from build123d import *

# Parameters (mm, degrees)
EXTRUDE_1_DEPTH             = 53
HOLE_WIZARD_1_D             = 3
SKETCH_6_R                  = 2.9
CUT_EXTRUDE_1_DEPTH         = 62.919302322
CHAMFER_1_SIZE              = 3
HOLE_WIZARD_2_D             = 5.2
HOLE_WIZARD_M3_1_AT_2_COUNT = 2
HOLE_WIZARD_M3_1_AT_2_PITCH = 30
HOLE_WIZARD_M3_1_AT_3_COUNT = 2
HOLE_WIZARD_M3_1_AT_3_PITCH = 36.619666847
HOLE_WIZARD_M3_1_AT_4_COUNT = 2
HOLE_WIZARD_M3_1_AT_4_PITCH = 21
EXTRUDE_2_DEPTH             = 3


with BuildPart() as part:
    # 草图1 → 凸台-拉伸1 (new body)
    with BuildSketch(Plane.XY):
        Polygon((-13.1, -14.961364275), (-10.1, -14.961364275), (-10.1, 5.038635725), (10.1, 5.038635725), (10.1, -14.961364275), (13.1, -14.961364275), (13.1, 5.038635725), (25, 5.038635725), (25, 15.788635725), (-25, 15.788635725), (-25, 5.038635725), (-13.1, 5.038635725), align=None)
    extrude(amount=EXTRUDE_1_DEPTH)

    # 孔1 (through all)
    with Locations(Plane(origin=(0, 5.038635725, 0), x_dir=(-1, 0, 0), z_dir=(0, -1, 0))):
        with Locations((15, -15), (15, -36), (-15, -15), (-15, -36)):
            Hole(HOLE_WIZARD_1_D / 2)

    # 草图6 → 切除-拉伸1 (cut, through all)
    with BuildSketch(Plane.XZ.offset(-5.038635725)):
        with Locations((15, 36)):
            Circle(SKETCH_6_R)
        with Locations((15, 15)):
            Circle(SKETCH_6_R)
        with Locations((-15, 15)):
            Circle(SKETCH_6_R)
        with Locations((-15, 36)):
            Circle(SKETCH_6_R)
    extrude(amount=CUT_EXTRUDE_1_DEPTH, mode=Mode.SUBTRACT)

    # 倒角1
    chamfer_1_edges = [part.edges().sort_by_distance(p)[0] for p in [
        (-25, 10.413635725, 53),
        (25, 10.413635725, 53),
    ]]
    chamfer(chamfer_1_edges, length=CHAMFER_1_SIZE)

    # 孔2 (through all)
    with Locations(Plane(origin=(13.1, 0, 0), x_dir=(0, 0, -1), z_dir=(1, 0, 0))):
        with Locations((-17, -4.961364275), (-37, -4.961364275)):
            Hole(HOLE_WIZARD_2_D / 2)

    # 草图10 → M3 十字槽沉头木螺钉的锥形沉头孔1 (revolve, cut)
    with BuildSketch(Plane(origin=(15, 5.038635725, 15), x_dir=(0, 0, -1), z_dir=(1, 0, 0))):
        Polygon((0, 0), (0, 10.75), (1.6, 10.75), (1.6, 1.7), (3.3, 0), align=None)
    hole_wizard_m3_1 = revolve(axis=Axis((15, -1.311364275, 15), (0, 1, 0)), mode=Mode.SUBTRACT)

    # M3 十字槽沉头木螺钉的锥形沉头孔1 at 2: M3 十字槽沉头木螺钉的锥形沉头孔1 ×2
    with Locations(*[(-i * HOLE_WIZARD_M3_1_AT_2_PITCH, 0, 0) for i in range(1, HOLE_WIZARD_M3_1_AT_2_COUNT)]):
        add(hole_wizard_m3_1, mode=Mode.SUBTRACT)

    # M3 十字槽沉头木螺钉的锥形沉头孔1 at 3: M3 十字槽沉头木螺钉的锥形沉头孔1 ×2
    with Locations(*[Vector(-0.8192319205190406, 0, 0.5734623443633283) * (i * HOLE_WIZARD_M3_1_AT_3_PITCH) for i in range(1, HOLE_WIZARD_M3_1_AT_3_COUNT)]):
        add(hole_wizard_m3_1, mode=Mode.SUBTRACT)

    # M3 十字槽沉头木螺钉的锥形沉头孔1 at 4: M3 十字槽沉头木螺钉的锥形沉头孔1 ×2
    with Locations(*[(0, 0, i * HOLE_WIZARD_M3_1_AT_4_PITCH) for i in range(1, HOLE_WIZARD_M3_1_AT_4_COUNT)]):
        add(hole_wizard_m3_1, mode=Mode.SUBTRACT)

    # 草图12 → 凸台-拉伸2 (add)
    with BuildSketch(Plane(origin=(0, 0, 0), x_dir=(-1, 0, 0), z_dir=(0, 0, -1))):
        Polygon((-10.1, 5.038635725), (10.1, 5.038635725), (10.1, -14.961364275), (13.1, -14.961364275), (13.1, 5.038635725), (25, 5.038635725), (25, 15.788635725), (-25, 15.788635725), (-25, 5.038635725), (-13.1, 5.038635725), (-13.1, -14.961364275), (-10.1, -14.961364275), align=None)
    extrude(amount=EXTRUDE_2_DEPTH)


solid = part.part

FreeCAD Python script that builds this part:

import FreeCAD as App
import Part
import Sketcher

V = App.Vector
Q = App.Units.Quantity


def edges_at(feature, points):
    """Names of the edges that pass closest to the given points."""
    edges = feature.Shape.Edges
    near = lambda p: min(range(len(edges)), key=lambda i: edges[i].distToShape(Part.Vertex(*p))[0])
    return sorted({f"Edge{near(p) + 1}" for p in points})


def add_polygon(sketch, points):
    """Adds a closed chain of lines whose ends are joined by coincident constraints."""
    first, n = sketch.GeometryCount, len(points)
    for a, b in zip(points, points[1:] + points[:1]):
        sketch.addGeometry(Part.LineSegment(App.Vector(*a, 0), App.Vector(*b, 0)), False)
    for i in range(n):
        sketch.addConstraint(Sketcher.Constraint("Coincident", first + i, 2, first + (i + 1) % n, 1))

doc = App.newDocument("Part")
params = doc.addObject("Spreadsheet::Sheet", "Params")
for row, (alias, value) in enumerate([
    ("sketch1_width", "3 mm"),
    ("sketch1_width2", "50 mm"),
    ("sketch1_height", "20 mm"),
    ("sketch1_width3", "20.2 mm"),
    ("sketch1_height2", "10.75 mm"),
    ("pad1_length", "53 mm"),
    ("sketch2_diameter", "3 mm"),
    ("hole_diameter", "3 mm"),
    ("sketch3_diameter", "5.8 mm"),
    ("chamfer_size", "3 mm"),
    ("sketch4_diameter", "5.2 mm"),
    ("hole2_diameter", "5.2 mm"),
    ("sketch5_height", "3.3 mm"),
    ("sketch5_height2", "1.6 mm"),
    ("sketch5_width", "10.75 mm"),
    ("groove_angle", "360 deg"),
    ("linearpattern_pitch", "30 mm"),
    ("linearpattern2_pitch", "36.619667 mm"),
    ("linearpattern3_pitch", "21 mm"),
    ("sketch6_width", "3 mm"),
    ("sketch6_width2", "50 mm"),
    ("sketch6_height", "20 mm"),
    ("sketch6_width3", "20.2 mm"),
    ("sketch6_height2", "10.75 mm"),
    ("pad2_length", "3 mm"),
], start=1):
    params.set(f"A{row}", alias)
    params.set(f"B{row}", "=" + value)
    params.setAlias(f"B{row}", alias)

body = doc.addObject("PartDesign::Body", "Body")

# Sketch on XY plane
sketch1 = body.newObject("Sketcher::SketchObject", "Sketch")
sketch1.AttachmentSupport = (doc.getObject("XY_Plane"), [""])
sketch1.MapMode = "FlatFace"
add_polygon(sketch1, [(-13.1, -14.961364), (-10.1, -14.961364), (-10.1, 5.038636), (10.1, 5.038636), (10.1, -14.961364), (13.1, -14.961364), (13.1, 5.038636), (25, 5.038636), (25, 15.788636), (-25, 15.788636), (-25, 5.038636), (-13.1, 5.038636)])  # lines 0-11
sketch1.addConstraint([
    Sketcher.Constraint("Horizontal", 0),
    Sketcher.Constraint("Vertical", 1),
    Sketcher.Constraint("Horizontal", 2),
    Sketcher.Constraint("Vertical", 3),
    Sketcher.Constraint("Horizontal", 4),
    Sketcher.Constraint("Vertical", 5),
    Sketcher.Constraint("Horizontal", 6),
    Sketcher.Constraint("Vertical", 7),
    Sketcher.Constraint("Horizontal", 8),
    Sketcher.Constraint("Vertical", 9),
    Sketcher.Constraint("Horizontal", 10),
    Sketcher.Constraint("Vertical", 11),
    Sketcher.Constraint("Symmetric", 0, 2, 3, 2, -2),
    Sketcher.Constraint("Symmetric", 6, 2, 9, 2, -2),
    Sketcher.Constraint("Horizontal", 2, 2, 5, 2),
    Sketcher.Constraint("Equal", 0, 4),
    Sketcher.Constraint("DistanceX", 0, 1, 0, 2, 3.0),
    Sketcher.Constraint("DistanceX", 8, 2, 8, 1, 50.0),
    Sketcher.Constraint("DistanceY", 1, 1, 1, 2, 20.0),
    Sketcher.Constraint("DistanceX", 2, 1, 2, 2, 20.2),
    Sketcher.Constraint("DistanceY", 7, 1, 7, 2, 10.75),
    Sketcher.Constraint("DistanceY", 0, 2, -1, 1, 14.961364),
])
sketch1.setExpression("Constraints[28]", "Params.sketch1_width")
sketch1.setExpression("Constraints[29]", "Params.sketch1_width2")
sketch1.setExpression("Constraints[30]", "Params.sketch1_height")
sketch1.setExpression("Constraints[31]", "Params.sketch1_width3")
sketch1.setExpression("Constraints[32]", "Params.sketch1_height2")
pad1 = body.newObject("PartDesign::Pad", "Pad")
pad1.Profile = sketch1
pad1.setExpression("Length", "Params.pad1_length")

# Sketch on XZ plane
sketch2 = body.newObject("Sketcher::SketchObject", "Sketch001")
sketch2.AttachmentSupport = (doc.getObject("XZ_Plane"), [""])
sketch2.MapMode = "FlatFace"
sketch2.AttachmentOffset = App.Placement(V(0, 0, -5.038636), App.Rotation())
sketch2.addGeometry([
    Part.Circle(V(-15, 15, 0), V(0, 0, 1), 1.5),
    Part.Circle(V(-15, 36, 0), V(0, 0, 1), 1.5),
    Part.Circle(V(15, 15, 0), V(0, 0, 1), 1.5),
    Part.Circle(V(15, 36, 0), V(0, 0, 1), 1.5),
], False)
sketch2.addConstraint([
    Sketcher.Constraint("Equal", 0, 1),
    Sketcher.Constraint("Equal", 1, 2),
    Sketcher.Constraint("Equal", 2, 3),
    Sketcher.Constraint("Symmetric", 0, 3, 2, 3, -2),
    Sketcher.Constraint("Symmetric", 1, 3, 3, 3, -2),
    Sketcher.Constraint("Vertical", 0, 3, 1, 3),
    Sketcher.Constraint("Diameter", 0, 3.0),
    Sketcher.Constraint("DistanceX", 0, 3, -1, 1, 15.0),
    Sketcher.Constraint("DistanceY", -1, 1, 0, 3, 15.0),
    Sketcher.Constraint("DistanceY", -1, 1, 1, 3, 36.0),
])
sketch2.setExpression("Constraints[6]", "Params.sketch2_diameter")
doc.recompute()
hole = body.newObject("PartDesign::Hole", "Hole")
hole.Profile = sketch2
hole.ThreadType = "None"
hole.setExpression("Diameter", "Params.hole_diameter")
hole.DepthType = "ThroughAll"

# Sketch on XZ plane
sketch3 = body.newObject("Sketcher::SketchObject", "Sketch002")
sketch3.AttachmentSupport = (doc.getObject("XZ_Plane"), [""])
sketch3.MapMode = "FlatFace"
sketch3.AttachmentOffset = App.Placement(V(0, 0, -5.038636), App.Rotation())
sketch3.addGeometry([
    Part.Circle(V(15, 36, 0), V(0, 0, 1), 2.9),
    Part.Circle(V(15, 15, 0), V(0, 0, 1), 2.9),
    Part.Circle(V(-15, 15, 0), V(0, 0, 1), 2.9),
    Part.Circle(V(-15, 36, 0), V(0, 0, 1), 2.9),
], False)
sketch3.addConstraint([
    Sketcher.Constraint("Equal", 0, 1),
    Sketcher.Constraint("Equal", 1, 2),
    Sketcher.Constraint("Equal", 2, 3),
    Sketcher.Constraint("Symmetric", 1, 3, 2, 3, -2),
    Sketcher.Constraint("Symmetric", 0, 3, 3, 3, -2),
    Sketcher.Constraint("Vertical", 0, 3, 1, 3),
    Sketcher.Constraint("Diameter", 0, 5.8),
    Sketcher.Constraint("DistanceX", -1, 1, 0, 3, 15.0),
    Sketcher.Constraint("DistanceY", -1, 1, 0, 3, 36.0),
    Sketcher.Constraint("DistanceY", -1, 1, 1, 3, 15.0),
])
sketch3.setExpression("Constraints[6]", "Params.sketch3_diameter")
pocket1 = body.newObject("PartDesign::Pocket", "Pocket")
pocket1.Profile = sketch3
pocket1.Type = "ThroughAll"
pocket1.Reversed = True
doc.recompute()

chamfer = body.newObject("PartDesign::Chamfer", "Chamfer")
chamfer.Base = (pocket1, edges_at(pocket1, [(-25, 10.414, 53), (25, 10.414, 53)]))
chamfer.setExpression("Size", "Params.chamfer_size")

# Sketch on YZ plane
sketch4 = body.newObject("Sketcher::SketchObject", "Sketch003")
sketch4.AttachmentSupport = (doc.getObject("YZ_Plane"), [""])
sketch4.MapMode = "FlatFace"
sketch4.AttachmentOffset = App.Placement(V(0, 0, 13.1), App.Rotation())
sketch4.addGeometry([
    Part.Circle(V(-4.961364, 17, 0), V(0, 0, 1), 2.6),
    Part.Circle(V(-4.961364, 37, 0), V(0, 0, 1), 2.6),
], False)
sketch4.addConstraint([
    Sketcher.Constraint("Equal", 0, 1),
    Sketcher.Constraint("Vertical", 0, 3, 1, 3),
    Sketcher.Constraint("Diameter", 0, 5.2),
    Sketcher.Constraint("DistanceY", -1, 1, 0, 3, 17.0),
    Sketcher.Constraint("DistanceY", -1, 1, 1, 3, 37.0),
    Sketcher.Constraint("DistanceX", 0, 3, -1, 1, 4.961364),
])
sketch4.setExpression("Constraints[2]", "Params.sketch4_diameter")
doc.recompute()
hole2 = body.newObject("PartDesign::Hole", "Hole001")
hole2.Profile = sketch4
hole2.ThreadType = "None"
hole2.setExpression("Diameter", "Params.hole2_diameter")
hole2.DepthType = "ThroughAll"

# Sketch on YZ plane
sketch5 = body.newObject("Sketcher::SketchObject", "Sketch004")
sketch5.AttachmentSupport = (doc.getObject("YZ_Plane"), [""])
sketch5.MapMode = "FlatFace"
sketch5.AttachmentOffset = App.Placement(V(0, 0, 15), App.Rotation())
add_polygon(sketch5, [(15.788636, 15), (5.038636, 15), (5.038636, 11.7), (6.738636, 13.4), (15.788636, 13.4)])  # lines 0-4
sketch5.addGeometry(Part.LineSegment(V(5.038636, 15, 0), V(15.788636, 15, 0)), True)  # axis
sketch5.addConstraint([
    Sketcher.Constraint("Horizontal", 0),
    Sketcher.Constraint("Vertical", 1),
    Sketcher.Constraint("Horizontal", 3),
    Sketcher.Constraint("Vertical", 4),
    Sketcher.Constraint("Horizontal", 5),
    Sketcher.Constraint("Coincident", 5, 1, 0, 2),
    Sketcher.Constraint("Vertical", 3, 2, 5, 2),
    Sketcher.Constraint("Angle", 2, Q("45 deg")),
    Sketcher.Constraint("DistanceY", 1, 2, 1, 1, 3.3),
    Sketcher.Constraint("DistanceY", 4, 1, 4, 2, 1.6),
    Sketcher.Constraint("DistanceY", -1, 1, 0, 2, 15.0),
    Sketcher.Constraint("DistanceX", 0, 2, 0, 1, 10.75),
    Sketcher.Constraint("DistanceX", -1, 1, 0, 2, 5.038636),
])
sketch5.setExpression("Constraints[13]", "Params.sketch5_height")
sketch5.setExpression("Constraints[14]", "Params.sketch5_height2")
sketch5.setExpression("Constraints[16]", "Params.sketch5_width")
groove = body.newObject("PartDesign::Groove", "Groove")
groove.Profile = sketch5
groove.ReferenceAxis = (sketch5, ["Axis0"])
groove.setExpression("Angle", "Params.groove_angle")
doc.recompute()

linearpattern = body.newObject("PartDesign::LinearPattern", "LinearPattern")
linearpattern.Originals = [groove]
linearpattern.Direction = (doc.getObject("X_Axis"), [""])
linearpattern.Mode = "offset"
linearpattern.setExpression("Offset", "Params.linearpattern_pitch")
linearpattern.Occurrences = 2
linearpattern.Reversed = True
body.Tip = linearpattern
doc.recompute()

datumline = body.newObject("PartDesign::Line", "DatumLine")
datumline.Placement = App.Placement(V(0, 0, 0), App.Rotation(V(0, 0, 1), V(-0.819231921, 0, 0.573462344)))
linearpattern2 = body.newObject("PartDesign::LinearPattern", "LinearPattern001")
linearpattern2.Originals = [groove]
linearpattern2.Direction = (datumline, [""])
linearpattern2.Mode = "offset"
linearpattern2.setExpression("Offset", "Params.linearpattern2_pitch")
linearpattern2.Occurrences = 2
body.Tip = linearpattern2
doc.recompute()

linearpattern3 = body.newObject("PartDesign::LinearPattern", "LinearPattern002")
linearpattern3.Originals = [groove]
linearpattern3.Direction = (doc.getObject("Z_Axis"), [""])
linearpattern3.Mode = "offset"
linearpattern3.setExpression("Offset", "Params.linearpattern3_pitch")
linearpattern3.Occurrences = 2
body.Tip = linearpattern3

# Sketch on XY plane
sketch6 = body.newObject("Sketcher::SketchObject", "Sketch005")
sketch6.AttachmentSupport = (doc.getObject("XY_Plane"), [""])
sketch6.MapMode = "FlatFace"
add_polygon(sketch6, [(10.1, 5.038636), (-10.1, 5.038636), (-10.1, -14.961364), (-13.1, -14.961364), (-13.1, 5.038636), (-25, 5.038636), (-25, 15.788636), (25, 15.788636), (25, 5.038636), (13.1, 5.038636), (13.1, -14.961364), (10.1, -14.961364)])  # lines 0-11
sketch6.addConstraint([
    Sketcher.Constraint("Horizontal", 0),
    Sketcher.Constraint("Vertical", 1),
    Sketcher.Constraint("Horizontal", 2),
    Sketcher.Constraint("Vertical", 3),
    Sketcher.Constraint("Horizontal", 4),
    Sketcher.Constraint("Vertical", 5),
    Sketcher.Constraint("Horizontal", 6),
    Sketcher.Constraint("Vertical", 7),
    Sketcher.Constraint("Horizontal", 8),
    Sketcher.Constraint("Vertical", 9),
    Sketcher.Constraint("Horizontal", 10),
    Sketcher.Constraint("Vertical", 11),
    Sketcher.Constraint("Symmetric", 4, 2, 7, 2, -2),
    Sketcher.Constraint("Symmetric", 2, 2, 9, 2, -2),
    Sketcher.Constraint("Horizontal", 0, 2, 3, 2),
    Sketcher.Constraint("Equal", 2, 10),
    Sketcher.Constraint("DistanceX", 2, 2, 2, 1, 3.0),
    Sketcher.Constraint("DistanceX", 6, 1, 6, 2, 50.0),
    Sketcher.Constraint("DistanceY", 1, 2, 1, 1, 20.0),
    Sketcher.Constraint("DistanceX", 0, 2, 0, 1, 20.2),
    Sketcher.Constraint("DistanceY", 5, 1, 5, 2, 10.75),
    Sketcher.Constraint("DistanceY", -1, 1, 0, 2, 5.038636),
])
sketch6.setExpression("Constraints[28]", "Params.sketch6_width")
sketch6.setExpression("Constraints[29]", "Params.sketch6_width2")
sketch6.setExpression("Constraints[30]", "Params.sketch6_height")
sketch6.setExpression("Constraints[31]", "Params.sketch6_width3")
sketch6.setExpression("Constraints[32]", "Params.sketch6_height2")
pad2 = body.newObject("PartDesign::Pad", "Pad001")
pad2.Profile = sketch6
pad2.setExpression("Length", "Params.pad2_length")
pad2.Reversed = True

doc.recompute()
